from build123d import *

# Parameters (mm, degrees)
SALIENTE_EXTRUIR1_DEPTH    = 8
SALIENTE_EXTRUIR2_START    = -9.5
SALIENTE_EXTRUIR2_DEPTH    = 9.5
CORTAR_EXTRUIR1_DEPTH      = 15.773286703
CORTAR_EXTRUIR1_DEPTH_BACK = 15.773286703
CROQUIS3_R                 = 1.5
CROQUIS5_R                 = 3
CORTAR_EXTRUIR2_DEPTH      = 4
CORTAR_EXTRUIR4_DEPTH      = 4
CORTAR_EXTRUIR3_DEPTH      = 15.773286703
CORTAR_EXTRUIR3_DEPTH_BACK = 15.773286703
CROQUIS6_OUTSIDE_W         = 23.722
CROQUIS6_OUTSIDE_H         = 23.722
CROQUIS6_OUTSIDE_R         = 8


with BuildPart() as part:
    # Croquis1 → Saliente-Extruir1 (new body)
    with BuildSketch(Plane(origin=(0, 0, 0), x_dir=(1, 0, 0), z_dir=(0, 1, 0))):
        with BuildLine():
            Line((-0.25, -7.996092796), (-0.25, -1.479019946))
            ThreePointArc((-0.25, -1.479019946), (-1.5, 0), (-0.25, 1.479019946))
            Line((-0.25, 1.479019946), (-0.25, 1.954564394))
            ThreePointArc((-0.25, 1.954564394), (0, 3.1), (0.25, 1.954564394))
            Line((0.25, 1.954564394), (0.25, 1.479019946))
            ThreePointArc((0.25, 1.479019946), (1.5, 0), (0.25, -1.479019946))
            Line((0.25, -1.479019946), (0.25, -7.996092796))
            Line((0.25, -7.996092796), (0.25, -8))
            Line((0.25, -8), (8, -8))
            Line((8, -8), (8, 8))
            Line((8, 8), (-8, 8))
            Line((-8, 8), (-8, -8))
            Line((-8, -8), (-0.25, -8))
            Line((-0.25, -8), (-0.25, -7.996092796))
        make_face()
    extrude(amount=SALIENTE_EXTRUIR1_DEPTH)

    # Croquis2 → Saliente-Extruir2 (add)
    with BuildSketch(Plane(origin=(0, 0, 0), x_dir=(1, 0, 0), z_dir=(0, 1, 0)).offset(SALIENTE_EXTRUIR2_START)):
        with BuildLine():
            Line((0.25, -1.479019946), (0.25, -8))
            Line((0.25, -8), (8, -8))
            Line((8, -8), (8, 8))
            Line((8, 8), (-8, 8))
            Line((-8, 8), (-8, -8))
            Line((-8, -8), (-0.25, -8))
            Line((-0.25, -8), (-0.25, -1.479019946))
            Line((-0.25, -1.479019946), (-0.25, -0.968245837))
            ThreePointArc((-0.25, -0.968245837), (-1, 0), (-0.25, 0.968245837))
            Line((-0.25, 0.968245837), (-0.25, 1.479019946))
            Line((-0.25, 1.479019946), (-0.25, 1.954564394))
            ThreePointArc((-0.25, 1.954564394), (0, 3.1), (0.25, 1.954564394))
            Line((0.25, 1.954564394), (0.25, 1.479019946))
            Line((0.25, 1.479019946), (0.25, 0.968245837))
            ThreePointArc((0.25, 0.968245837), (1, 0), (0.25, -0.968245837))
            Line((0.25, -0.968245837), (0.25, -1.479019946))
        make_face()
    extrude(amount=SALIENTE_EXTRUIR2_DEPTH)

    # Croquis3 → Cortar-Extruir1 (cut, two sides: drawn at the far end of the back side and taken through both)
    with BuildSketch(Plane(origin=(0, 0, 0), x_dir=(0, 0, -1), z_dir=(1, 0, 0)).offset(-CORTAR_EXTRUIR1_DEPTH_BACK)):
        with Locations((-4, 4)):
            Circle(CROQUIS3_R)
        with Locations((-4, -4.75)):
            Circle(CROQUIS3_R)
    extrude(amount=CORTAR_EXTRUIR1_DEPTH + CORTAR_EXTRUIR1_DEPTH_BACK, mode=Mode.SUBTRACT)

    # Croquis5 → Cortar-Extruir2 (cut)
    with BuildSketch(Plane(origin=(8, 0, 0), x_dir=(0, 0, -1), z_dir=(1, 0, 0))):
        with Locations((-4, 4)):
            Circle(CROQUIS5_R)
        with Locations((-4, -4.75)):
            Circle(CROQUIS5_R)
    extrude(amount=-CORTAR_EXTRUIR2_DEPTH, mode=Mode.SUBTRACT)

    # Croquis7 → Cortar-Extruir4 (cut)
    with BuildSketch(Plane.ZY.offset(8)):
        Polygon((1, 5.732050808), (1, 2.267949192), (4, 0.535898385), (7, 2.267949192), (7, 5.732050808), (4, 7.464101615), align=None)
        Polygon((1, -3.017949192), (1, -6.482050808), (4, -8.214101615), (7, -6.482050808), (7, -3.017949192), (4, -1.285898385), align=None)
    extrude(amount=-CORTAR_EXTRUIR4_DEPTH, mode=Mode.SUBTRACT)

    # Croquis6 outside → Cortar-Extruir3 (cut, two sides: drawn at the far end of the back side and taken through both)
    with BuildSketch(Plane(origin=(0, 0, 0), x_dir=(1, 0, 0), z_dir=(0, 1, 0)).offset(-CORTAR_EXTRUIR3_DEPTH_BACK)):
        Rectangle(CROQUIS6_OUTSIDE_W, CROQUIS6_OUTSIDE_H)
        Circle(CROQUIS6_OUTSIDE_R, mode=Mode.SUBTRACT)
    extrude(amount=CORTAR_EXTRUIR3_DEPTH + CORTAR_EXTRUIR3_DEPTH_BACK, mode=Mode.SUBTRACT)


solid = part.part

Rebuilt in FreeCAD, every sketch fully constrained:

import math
import FreeCAD as App
import Part
import Sketcher
from FreeCAD import Vector
Q = App.Units.Quantity


def add_polygon(sketch, points):
    """Adds a closed chain of lines whose ends are joined by coincident constraints."""
    first, n = sketch.GeometryCount, len(points)
    for a, b in zip(points, points[1:] + points[:1]):
        sketch.addGeometry(Part.LineSegment(App.Vector(*a, 0), App.Vector(*b, 0)), False)
    for i in range(n):
        sketch.addConstraint(Sketcher.Constraint("Coincident", first + i, 2, first + (i + 1) % n, 1))

doc = App.newDocument("Part")
body = doc.addObject("PartDesign::Body", "Body")

# Sketch on XZ plane
sketch1 = doc.addObject("Sketcher::SketchObject", "Sketch")
body.addObject(sketch1)
sketch1.AttachmentSupport = (doc.XZ_Plane, [""])
sketch1.MapMode = "FlatFace"
sketch1.addGeometry(Part.ArcOfCircle(Part.Circle(Vector(0, 0, 0), Vector(0, 0, 1), 1.5), math.radians(99.594068), math.radians(260.405932)), False)
sketch1.addGeometry(Part.LineSegment(Vector(-0.25, -1.47902, 0), Vector(-0.25, -1.954564, 0)), False)
sketch1.addGeometry(Part.ArcOfCircle(Part.Circle(Vector(0, -2.5, 0), Vector(0, 0, 1), 0.6), math.radians(114.624318), math.radians(425.375682)), False)
sketch1.addGeometry(Part.LineSegment(Vector(0.25, -1.954564, 0), Vector(0.25, -1.47902, 0)), False)
sketch1.addGeometry(Part.ArcOfCircle(Part.Circle(Vector(0, 0, 0), Vector(0, 0, 1), 1.5), math.radians(-80.405932), math.radians(80.405932)), False)
sketch1.addGeometry(Part.LineSegment(Vector(0.25, 1.47902, 0), Vector(0.25, 8, 0)), False)
sketch1.addGeometry(Part.LineSegment(Vector(0.25, 8, 0), Vector(8, 8, 0)), False)
sketch1.addGeometry(Part.LineSegment(Vector(8, 8, 0), Vector(8, -8, 0)), False)
sketch1.addGeometry(Part.LineSegment(Vector(8, -8, 0), Vector(-8, -8, 0)), False)
sketch1.addGeometry(Part.LineSegment(Vector(-8, -8, 0), Vector(-8, 8, 0)), False)
sketch1.addGeometry(Part.LineSegment(Vector(-8, 8, 0), Vector(-0.25, 8, 0)), False)
sketch1.addGeometry(Part.LineSegment(Vector(-0.25, 8, 0), Vector(-0.25, 1.47902, 0)), False)
sketch1.addConstraint(Sketcher.Constraint("Coincident", 0, 2, 1, 1))
sketch1.addConstraint(Sketcher.Constraint("Coincident", 1, 2, 2, 1))
sketch1.addConstraint(Sketcher.Constraint("Coincident", 2, 2, 3, 1))
sketch1.addConstraint(Sketcher.Constraint("Coincident", 3, 2, 4, 1))
sketch1.addConstraint(Sketcher.Constraint("Coincident", 4, 2, 5, 1))
sketch1.addConstraint(Sketcher.Constraint("Coincident", 5, 2, 6, 1))
sketch1.addConstraint(Sketcher.Constraint("Coincident", 6, 2, 7, 1))
sketch1.addConstraint(Sketcher.Constraint("Coincident", 7, 2, 8, 1))
sketch1.addConstraint(Sketcher.Constraint("Coincident", 8, 2, 9, 1))
sketch1.addConstraint(Sketcher.Constraint("Coincident", 9, 2, 10, 1))
sketch1.addConstraint(Sketcher.Constraint("Coincident", 10, 2, 11, 1))
sketch1.addConstraint(Sketcher.Constraint("Coincident", 11, 2, 0, 1))
sketch1.addConstraint(Sketcher.Constraint("Vertical", 1))
sketch1.addConstraint(Sketcher.Constraint("Vertical", 3))
sketch1.addConstraint(Sketcher.Constraint("Vertical", 5))
sketch1.addConstraint(Sketcher.Constraint("Horizontal", 6))
sketch1.addConstraint(Sketcher.Constraint("Vertical", 7))
sketch1.addConstraint(Sketcher.Constraint("Horizontal", 8))
sketch1.addConstraint(Sketcher.Constraint("Vertical", 9))
sketch1.addConstraint(Sketcher.Constraint("Horizontal", 10))
sketch1.addConstraint(Sketcher.Constraint("Vertical", 11))
sketch1.addConstraint(Sketcher.Constraint("Coincident", 0, 3, -1, 1))
sketch1.addConstraint(Sketcher.Constraint("Coincident", 4, 3, -1, 1))
sketch1.addConstraint(Sketcher.Constraint("Equal", 0, 4))
sketch1.addConstraint(Sketcher.Constraint("Symmetric", 6, 2, 8, 2, -1, 1))
sketch1.addConstraint(Sketcher.Constraint("Symmetric", 1, 2, 2, 2, -2))
sketch1.addConstraint(Sketcher.Constraint("Symmetric", 5, 2, 10, 2, -2))
sketch1.addConstraint(Sketcher.Constraint("Vertical", 3, 2, 4, 2))
sketch1.addConstraint(Sketcher.Constraint("Equal", 8, 7))
sketch1.addConstraint(Sketcher.Constraint("Radius", 0, Q("1.5 mm")))
sketch1.addConstraint(Sketcher.Constraint("Radius", 2, Q("0.6 mm")))
sketch1.addConstraint(Sketcher.Constraint("DistanceX", 8, 2, 8, 1, Q("16 mm")))
sketch1.addConstraint(Sketcher.Constraint("DistanceX", 6, 1, 6, 2, Q("7.75 mm")))
sketch1.addConstraint(Sketcher.Constraint("DistanceY", 2, 3, -1, 1, Q("2.5 mm")))
pad1 = doc.addObject("PartDesign::Pad", "Pad")
body.addObject(pad1)
pad1.Profile = sketch1
pad1.Length = 8
pad1.Reversed = True

# Sketch on XZ plane
sketch2 = doc.addObject("Sketcher::SketchObject", "Sketch001")
body.addObject(sketch2)
sketch2.AttachmentSupport = (doc.XZ_Plane, [""])
sketch2.MapMode = "FlatFace"
sketch2.AttachmentOffset = App.Placement(Vector(0, 0, 9.5), App.Rotation())
sketch2.addGeometry(Part.LineSegment(Vector(0.25, 8, 0), Vector(8, 8, 0)), False)
sketch2.addGeometry(Part.LineSegment(Vector(8, 8, 0), Vector(8, -8, 0)), False)
sketch2.addGeometry(Part.LineSegment(Vector(8, -8, 0), Vector(-8, -8, 0)), False)
sketch2.addGeometry(Part.LineSegment(Vector(-8, -8, 0), Vector(-8, 8, 0)), False)
sketch2.addGeometry(Part.LineSegment(Vector(-8, 8, 0), Vector(-0.25, 8, 0)), False)
sketch2.addGeometry(Part.LineSegment(Vector(-0.25, 8, 0), Vector(-0.25, 0.968246, 0)), False)
sketch2.addGeometry(Part.ArcOfCircle(Part.Circle(Vector(0, 0, 0), Vector(0, 0, 1), 1), math.radians(104.477512), math.radians(255.522488)), False)
sketch2.addGeometry(Part.LineSegment(Vector(-0.25, -0.968246, 0), Vector(-0.25, -1.954564, 0)), False)
sketch2.addGeometry(Part.ArcOfCircle(Part.Circle(Vector(0, -2.5, 0), Vector(0, 0, 1), 0.6), math.radians(114.624318), math.radians(425.375682)), False)
sketch2.addGeometry(Part.LineSegment(Vector(0.25, -1.954564, 0), Vector(0.25, -0.968246, 0)), False)
sketch2.addGeometry(Part.ArcOfCircle(Part.Circle(Vector(0, 0, 0), Vector(0, 0, 1), 1), math.radians(-75.522488), math.radians(75.522488)), False)
sketch2.addGeometry(Part.LineSegment(Vector(0.25, 0.968246, 0), Vector(0.25, 8, 0)), False)
sketch2.addConstraint(Sketcher.Constraint("Coincident", 0, 2, 1, 1))
sketch2.addConstraint(Sketcher.Constraint("Coincident", 1, 2, 2, 1))
sketch2.addConstraint(Sketcher.Constraint("Coincident", 2, 2, 3, 1))
sketch2.addConstraint(Sketcher.Constraint("Coincident", 3, 2, 4, 1))
sketch2.addConstraint(Sketcher.Constraint("Coincident", 4, 2, 5, 1))
sketch2.addConstraint(Sketcher.Constraint("Coincident", 5, 2, 6, 1))
sketch2.addConstraint(Sketcher.Constraint("Coincident", 6, 2, 7, 1))
sketch2.addConstraint(Sketcher.Constraint("Coincident", 7, 2, 8, 1))
sketch2.addConstraint(Sketcher.Constraint("Coincident", 8, 2, 9, 1))
sketch2.addConstraint(Sketcher.Constraint("Coincident", 9, 2, 10, 1))
sketch2.addConstraint(Sketcher.Constraint("Coincident", 10, 2, 11, 1))
sketch2.addConstraint(Sketcher.Constraint("Coincident", 11, 2, 0, 1))
sketch2.addConstraint(Sketcher.Constraint("Horizontal", 0))
sketch2.addConstraint(Sketcher.Constraint("Vertical", 1))
sketch2.addConstraint(Sketcher.Constraint("Horizontal", 2))
sketch2.addConstraint(Sketcher.Constraint("Vertical", 3))
sketch2.addConstraint(Sketcher.Constraint("Horizontal", 4))
sketch2.addConstraint(Sketcher.Constraint("Vertical", 5))
sketch2.addConstraint(Sketcher.Constraint("Vertical", 7))
sketch2.addConstraint(Sketcher.Constraint("Vertical", 9))
sketch2.addConstraint(Sketcher.Constraint("Vertical", 11))
sketch2.addConstraint(Sketcher.Constraint("Coincident", 6, 3, -1, 1))
sketch2.addConstraint(Sketcher.Constraint("Coincident", 10, 3, -1, 1))
sketch2.addConstraint(Sketcher.Constraint("Equal", 6, 10))
sketch2.addConstraint(Sketcher.Constraint("Symmetric", 0, 2, 2, 2, -1, 1))
sketch2.addConstraint(Sketcher.Constraint("Symmetric", 7, 2, 8, 2, -2))
sketch2.addConstraint(Sketcher.Constraint("Symmetric", 4, 2, 11, 2, -2))
sketch2.addConstraint(Sketcher.Constraint("Vertical", 5, 2, 6, 2))
sketch2.addConstraint(Sketcher.Constraint("Equal", 2, 1))
sketch2.addConstraint(Sketcher.Constraint("Radius", 6, Q("1 mm")))
sketch2.addConstraint(Sketcher.Constraint("Radius", 8, Q("0.6 mm")))
sketch2.addConstraint(Sketcher.Constraint("DistanceX", 2, 2, 2, 1, Q("16 mm")))
sketch2.addConstraint(Sketcher.Constraint("DistanceX", 0, 1, 0, 2, Q("7.75 mm")))
sketch2.addConstraint(Sketcher.Constraint("DistanceY", 8, 3, -1, 1, Q("2.5 mm")))
pad2 = doc.addObject("PartDesign::Pad", "Pad001")
body.addObject(pad2)
pad2.Profile = sketch2
pad2.Length = 9.5
pad2.Reversed = True

# Sketch on YZ plane
sketch3 = doc.addObject("Sketcher::SketchObject", "Sketch002")
body.addObject(sketch3)
sketch3.AttachmentSupport = (doc.YZ_Plane, [""])
sketch3.MapMode = "FlatFace"
sketch3.addGeometry(Part.Circle(Vector(4, 4, 0), Vector(0, 0, 1), 1.5), False)
sketch3.addGeometry(Part.Circle(Vector(-4.75, 4, 0), Vector(0, 0, 1), 1.5), False)
sketch3.addConstraint(Sketcher.Constraint("Equal", 0, 1))
sketch3.addConstraint(Sketcher.Constraint("Horizontal", 0, 3, 1, 3))
sketch3.addConstraint(Sketcher.Constraint("Diameter", 0, Q("3 mm")))
sketch3.addConstraint(Sketcher.Constraint("DistanceX", -1, 1, 0, 3, Q("4 mm")))
sketch3.addConstraint(Sketcher.Constraint("DistanceY", -1, 1, 0, 3, Q("4 mm")))
sketch3.addConstraint(Sketcher.Constraint("DistanceX", 1, 3, -1, 1, Q("4.75 mm")))
pocket1 = doc.addObject("PartDesign::Pocket", "Pocket")
body.addObject(pocket1)
pocket1.Profile = sketch3
pocket1.Type = "ThroughAll"
pocket1.Midplane = True

# Sketch on YZ plane
sketch4 = doc.addObject("Sketcher::SketchObject", "Sketch003")
body.addObject(sketch4)
sketch4.AttachmentSupport = (doc.YZ_Plane, [""])
sketch4.MapMode = "FlatFace"
sketch4.AttachmentOffset = App.Placement(Vector(0, 0, 8), App.Rotation())
sketch4.addGeometry(Part.Circle(Vector(4, 4, 0), Vector(0, 0, 1), 3), False)
sketch4.addGeometry(Part.Circle(Vector(-4.75, 4, 0), Vector(0, 0, 1), 3), False)
sketch4.addConstraint(Sketcher.Constraint("Equal", 0, 1))
sketch4.addConstraint(Sketcher.Constraint("Horizontal", 0, 3, 1, 3))
sketch4.addConstraint(Sketcher.Constraint("Diameter", 0, Q("6 mm")))
sketch4.addConstraint(Sketcher.Constraint("DistanceX", -1, 1, 0, 3, Q("4 mm")))
sketch4.addConstraint(Sketcher.Constraint("DistanceY", -1, 1, 0, 3, Q("4 mm")))
sketch4.addConstraint(Sketcher.Constraint("DistanceX", 1, 3, -1, 1, Q("4.75 mm")))
pocket2 = doc.addObject("PartDesign::Pocket", "Pocket001")
body.addObject(pocket2)
pocket2.Profile = sketch4
pocket2.Length = 4

# Sketch on YZ plane
sketch5 = doc.addObject("Sketcher::SketchObject", "Sketch004")
body.addObject(sketch5)
sketch5.AttachmentSupport = (doc.YZ_Plane, [""])
sketch5.MapMode = "FlatFace"
sketch5.AttachmentOffset = App.Placement(Vector(0, 0, -8), App.Rotation())
add_polygon(sketch5, [(5.732051, 1), (2.267949, 1), (0.535898, 4), (2.267949, 7), (5.732051, 7), (7.464102, 4)])  # lines 0-5
add_polygon(sketch5, [(-3.017949, 1), (-6.482051, 1), (-8.214102, 4), (-6.482051, 7), (-3.017949, 7), (-1.285898, 4)])  # lines 6-11
sketch5.addConstraint(Sketcher.Constraint("Horizontal", 0))
sketch5.addConstraint(Sketcher.Constraint("Horizontal", 3))
sketch5.addConstraint(Sketcher.Constraint("Horizontal", 6))
sketch5.addConstraint(Sketcher.Constraint("Horizontal", 9))
sketch5.addConstraint(Sketcher.Constraint("Parallel", 1, 4))
sketch5.addConstraint(Sketcher.Constraint("Parallel", 2, 5))
sketch5.addConstraint(Sketcher.Constraint("Parallel", 4, 7))
sketch5.addConstraint(Sketcher.Constraint("Parallel", 5, 8))
sketch5.addConstraint(Sketcher.Constraint("Parallel", 7, 10))
sketch5.addConstraint(Sketcher.Constraint("Parallel", 8, 11))
sketch5.addConstraint(Sketcher.Constraint("Horizontal", 1, 2, 4, 2))
sketch5.addConstraint(Sketcher.Constraint("Horizontal", 5, 2, 6, 2))
sketch5.addConstraint(Sketcher.Constraint("Horizontal", 4, 2, 7, 2))
sketch5.addConstraint(Sketcher.Constraint("Horizontal", 3, 2, 8, 2))
sketch5.addConstraint(Sketcher.Constraint("Horizontal", 7, 2, 10, 2))
sketch5.addConstraint(Sketcher.Constraint("Vertical", 0, 2, 2, 2))
sketch5.addConstraint(Sketcher.Constraint("Vertical", 3, 2, 5, 2))
sketch5.addConstraint(Sketcher.Constraint("Equal", 3, 6))
sketch5.addConstraint(Sketcher.Constraint("Angle", 1, Q("120 deg")))
sketch5.addConstraint(Sketcher.Constraint("DistanceY", -1, 1, 0, 2, Q("1 mm")))
sketch5.addConstraint(Sketcher.Constraint("DistanceY", -1, 1, 1, 2, Q("4 mm")))
sketch5.addConstraint(Sketcher.Constraint("DistanceX", 6, 2, 0, 2, Q("8.75 mm")))
sketch5.addConstraint(Sketcher.Constraint("DistanceX", 0, 2, 0, 1, Q("3.464102 mm")))
sketch5.addConstraint(Sketcher.Constraint("DistanceX", -1, 1, 1, 2, Q("0.535898 mm")))
pocket3 = doc.addObject("PartDesign::Pocket", "Pocket002")
body.addObject(pocket3)
pocket3.Profile = sketch5
pocket3.Length = 4
pocket3.Reversed = True

# Sketch on XZ plane
sketch6 = doc.addObject("Sketcher::SketchObject", "Sketch005")
body.addObject(sketch6)
sketch6.AttachmentSupport = (doc.XZ_Plane, [""])
sketch6.MapMode = "FlatFace"
add_polygon(sketch6, [(-11.861, -11.861), (-11.861, 11.861), (11.861, 11.861), (11.861, -11.861)])  # lines 0-3
sketch6.addGeometry(Part.Circle(Vector(0, 0, 0), Vector(0, 0, 1), 8), False)  # 4
sketch6.addConstraint(Sketcher.Constraint("Vertical", 0))
sketch6.addConstraint(Sketcher.Constraint("Horizontal", 1))
sketch6.addConstraint(Sketcher.Constraint("Vertical", 2))
sketch6.addConstraint(Sketcher.Constraint("Horizontal", 3))
sketch6.addConstraint(Sketcher.Constraint("Coincident", 4, 3, -1, 1))
sketch6.addConstraint(Sketcher.Constraint("Symmetric", 0, 2, 2, 2, -1, 1))
sketch6.addConstraint(Sketcher.Constraint("Equal", 3, 0))
sketch6.addConstraint(Sketcher.Constraint("Diameter", 4, Q("16 mm")))
sketch6.addConstraint(Sketcher.Constraint("DistanceX", 1, 1, 1, 2, Q("23.722 mm")))
pocket4 = doc.addObject("PartDesign::Pocket", "Pocket003")
body.addObject(pocket4)
pocket4.Profile = sketch6
pocket4.Type = "ThroughAll"
pocket4.Midplane = True

doc.recompute()
